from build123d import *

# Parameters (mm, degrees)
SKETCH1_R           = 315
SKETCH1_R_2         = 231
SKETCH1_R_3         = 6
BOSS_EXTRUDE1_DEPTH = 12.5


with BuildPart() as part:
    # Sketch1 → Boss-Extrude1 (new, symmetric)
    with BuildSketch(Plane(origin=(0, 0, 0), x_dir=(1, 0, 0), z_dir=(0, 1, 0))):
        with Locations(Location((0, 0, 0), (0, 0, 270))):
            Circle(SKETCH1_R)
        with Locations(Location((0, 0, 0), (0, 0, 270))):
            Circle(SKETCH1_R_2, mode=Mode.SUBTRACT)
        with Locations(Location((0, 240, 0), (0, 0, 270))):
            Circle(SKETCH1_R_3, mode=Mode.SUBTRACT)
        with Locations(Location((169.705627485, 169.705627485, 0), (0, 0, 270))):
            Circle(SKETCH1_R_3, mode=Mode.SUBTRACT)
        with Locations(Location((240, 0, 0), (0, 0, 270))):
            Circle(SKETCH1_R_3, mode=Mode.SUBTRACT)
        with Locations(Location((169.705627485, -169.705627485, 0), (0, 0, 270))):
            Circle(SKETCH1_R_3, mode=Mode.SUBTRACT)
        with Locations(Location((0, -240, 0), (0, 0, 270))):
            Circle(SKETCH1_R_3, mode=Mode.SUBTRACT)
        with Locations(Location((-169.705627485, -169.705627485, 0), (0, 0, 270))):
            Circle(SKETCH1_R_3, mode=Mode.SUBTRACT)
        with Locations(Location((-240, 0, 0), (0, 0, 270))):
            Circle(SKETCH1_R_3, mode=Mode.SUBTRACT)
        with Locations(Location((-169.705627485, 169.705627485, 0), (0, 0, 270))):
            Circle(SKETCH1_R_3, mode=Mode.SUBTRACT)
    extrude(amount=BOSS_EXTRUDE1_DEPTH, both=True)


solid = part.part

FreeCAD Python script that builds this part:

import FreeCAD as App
import Part
import Sketcher
from FreeCAD import Vector

doc = App.newDocument("Part")
body = doc.addObject("PartDesign::Body", "Body")

# Sketch on XZ plane
sketch1 = body.newObject("Sketcher::SketchObject", "Sketch")
sketch1.AttachmentSupport = (doc.getObject("XZ_Plane"), [""])
sketch1.MapMode = "FlatFace"
sketch1.addGeometry([
    Part.Circle(Vector(0, 0, 0), Vector(0, 0, 1), 315),  # 0
    Part.Circle(Vector(-170, -170, 0), Vector(0, 0, 1), 6),  # 1
    Part.Circle(Vector(0, -240, 0), Vector(0, 0, 1), 6),  # 2
    Part.Circle(Vector(-240, 0, 0), Vector(0, 0, 1), 6),  # 3
    Part.Circle(Vector(-170, 170, 0), Vector(0, 0, 1), 6),  # 4
    Part.Circle(Vector(170, -170, 0), Vector(0, 0, 1), 6),  # 5
    Part.Circle(Vector(240, 0, 0), Vector(0, 0, 1), 6),  # 6
    Part.Circle(Vector(0, 0, 0), Vector(0, 0, 1), 231),  # 7
    Part.Circle(Vector(0, 240, 0), Vector(0, 0, 1), 6),  # 8
    Part.Circle(Vector(170, 170, 0), Vector(0, 0, 1), 6),  # 9
], False)
sketch1.addConstraint([
    Sketcher.Constraint("Coincident", 0, 3, -1, 1),
    Sketcher.Constraint("Coincident", 7, 3, -1, 1),
    Sketcher.Constraint("Equal", 1, 2),
    Sketcher.Constraint("Equal", 2, 3),
    Sketcher.Constraint("Equal", 3, 4),
    Sketcher.Constraint("Equal", 4, 5),
    Sketcher.Constraint("Equal", 5, 6),
    Sketcher.Constraint("Equal", 6, 8),
    Sketcher.Constraint("Equal", 8, 9),
    Sketcher.Constraint("Symmetric", 4, 3, 5, 3, -1, 1),
    Sketcher.Constraint("Symmetric", 3, 3, 6, 3, -1, 1),
    Sketcher.Constraint("Symmetric", 2, 3, 8, 3, -1, 1),
    Sketcher.Constraint("Symmetric", 1, 3, 9, 3, -1, 1),
    Sketcher.Constraint("Symmetric", 1, 3, 5, 3, -2),
    Sketcher.Constraint("PointOnObject", 2, 3, -2),
    Sketcher.Constraint("PointOnObject", 3, 3, -1),
    Sketcher.Constraint("Diameter", 0, 630.0),
    Sketcher.Constraint("Diameter", 1, 12.0),
    Sketcher.Constraint("Diameter", 7, 462.0),
    Sketcher.Constraint("DistanceY", 2, 3, -1, 1, 240.0),
    Sketcher.Constraint("DistanceX", 3, 3, -1, 1, 240.0),
    Sketcher.Constraint("DistanceX", 1, 3, -1, 1, 169.705627),
    Sketcher.Constraint("DistanceY", 1, 3, -1, 1, 169.705627),
])
pad1 = body.newObject("PartDesign::Pad", "Pad")
pad1.Profile = sketch1
pad1.Length = 25
pad1.Midplane = True

doc.recompute()
